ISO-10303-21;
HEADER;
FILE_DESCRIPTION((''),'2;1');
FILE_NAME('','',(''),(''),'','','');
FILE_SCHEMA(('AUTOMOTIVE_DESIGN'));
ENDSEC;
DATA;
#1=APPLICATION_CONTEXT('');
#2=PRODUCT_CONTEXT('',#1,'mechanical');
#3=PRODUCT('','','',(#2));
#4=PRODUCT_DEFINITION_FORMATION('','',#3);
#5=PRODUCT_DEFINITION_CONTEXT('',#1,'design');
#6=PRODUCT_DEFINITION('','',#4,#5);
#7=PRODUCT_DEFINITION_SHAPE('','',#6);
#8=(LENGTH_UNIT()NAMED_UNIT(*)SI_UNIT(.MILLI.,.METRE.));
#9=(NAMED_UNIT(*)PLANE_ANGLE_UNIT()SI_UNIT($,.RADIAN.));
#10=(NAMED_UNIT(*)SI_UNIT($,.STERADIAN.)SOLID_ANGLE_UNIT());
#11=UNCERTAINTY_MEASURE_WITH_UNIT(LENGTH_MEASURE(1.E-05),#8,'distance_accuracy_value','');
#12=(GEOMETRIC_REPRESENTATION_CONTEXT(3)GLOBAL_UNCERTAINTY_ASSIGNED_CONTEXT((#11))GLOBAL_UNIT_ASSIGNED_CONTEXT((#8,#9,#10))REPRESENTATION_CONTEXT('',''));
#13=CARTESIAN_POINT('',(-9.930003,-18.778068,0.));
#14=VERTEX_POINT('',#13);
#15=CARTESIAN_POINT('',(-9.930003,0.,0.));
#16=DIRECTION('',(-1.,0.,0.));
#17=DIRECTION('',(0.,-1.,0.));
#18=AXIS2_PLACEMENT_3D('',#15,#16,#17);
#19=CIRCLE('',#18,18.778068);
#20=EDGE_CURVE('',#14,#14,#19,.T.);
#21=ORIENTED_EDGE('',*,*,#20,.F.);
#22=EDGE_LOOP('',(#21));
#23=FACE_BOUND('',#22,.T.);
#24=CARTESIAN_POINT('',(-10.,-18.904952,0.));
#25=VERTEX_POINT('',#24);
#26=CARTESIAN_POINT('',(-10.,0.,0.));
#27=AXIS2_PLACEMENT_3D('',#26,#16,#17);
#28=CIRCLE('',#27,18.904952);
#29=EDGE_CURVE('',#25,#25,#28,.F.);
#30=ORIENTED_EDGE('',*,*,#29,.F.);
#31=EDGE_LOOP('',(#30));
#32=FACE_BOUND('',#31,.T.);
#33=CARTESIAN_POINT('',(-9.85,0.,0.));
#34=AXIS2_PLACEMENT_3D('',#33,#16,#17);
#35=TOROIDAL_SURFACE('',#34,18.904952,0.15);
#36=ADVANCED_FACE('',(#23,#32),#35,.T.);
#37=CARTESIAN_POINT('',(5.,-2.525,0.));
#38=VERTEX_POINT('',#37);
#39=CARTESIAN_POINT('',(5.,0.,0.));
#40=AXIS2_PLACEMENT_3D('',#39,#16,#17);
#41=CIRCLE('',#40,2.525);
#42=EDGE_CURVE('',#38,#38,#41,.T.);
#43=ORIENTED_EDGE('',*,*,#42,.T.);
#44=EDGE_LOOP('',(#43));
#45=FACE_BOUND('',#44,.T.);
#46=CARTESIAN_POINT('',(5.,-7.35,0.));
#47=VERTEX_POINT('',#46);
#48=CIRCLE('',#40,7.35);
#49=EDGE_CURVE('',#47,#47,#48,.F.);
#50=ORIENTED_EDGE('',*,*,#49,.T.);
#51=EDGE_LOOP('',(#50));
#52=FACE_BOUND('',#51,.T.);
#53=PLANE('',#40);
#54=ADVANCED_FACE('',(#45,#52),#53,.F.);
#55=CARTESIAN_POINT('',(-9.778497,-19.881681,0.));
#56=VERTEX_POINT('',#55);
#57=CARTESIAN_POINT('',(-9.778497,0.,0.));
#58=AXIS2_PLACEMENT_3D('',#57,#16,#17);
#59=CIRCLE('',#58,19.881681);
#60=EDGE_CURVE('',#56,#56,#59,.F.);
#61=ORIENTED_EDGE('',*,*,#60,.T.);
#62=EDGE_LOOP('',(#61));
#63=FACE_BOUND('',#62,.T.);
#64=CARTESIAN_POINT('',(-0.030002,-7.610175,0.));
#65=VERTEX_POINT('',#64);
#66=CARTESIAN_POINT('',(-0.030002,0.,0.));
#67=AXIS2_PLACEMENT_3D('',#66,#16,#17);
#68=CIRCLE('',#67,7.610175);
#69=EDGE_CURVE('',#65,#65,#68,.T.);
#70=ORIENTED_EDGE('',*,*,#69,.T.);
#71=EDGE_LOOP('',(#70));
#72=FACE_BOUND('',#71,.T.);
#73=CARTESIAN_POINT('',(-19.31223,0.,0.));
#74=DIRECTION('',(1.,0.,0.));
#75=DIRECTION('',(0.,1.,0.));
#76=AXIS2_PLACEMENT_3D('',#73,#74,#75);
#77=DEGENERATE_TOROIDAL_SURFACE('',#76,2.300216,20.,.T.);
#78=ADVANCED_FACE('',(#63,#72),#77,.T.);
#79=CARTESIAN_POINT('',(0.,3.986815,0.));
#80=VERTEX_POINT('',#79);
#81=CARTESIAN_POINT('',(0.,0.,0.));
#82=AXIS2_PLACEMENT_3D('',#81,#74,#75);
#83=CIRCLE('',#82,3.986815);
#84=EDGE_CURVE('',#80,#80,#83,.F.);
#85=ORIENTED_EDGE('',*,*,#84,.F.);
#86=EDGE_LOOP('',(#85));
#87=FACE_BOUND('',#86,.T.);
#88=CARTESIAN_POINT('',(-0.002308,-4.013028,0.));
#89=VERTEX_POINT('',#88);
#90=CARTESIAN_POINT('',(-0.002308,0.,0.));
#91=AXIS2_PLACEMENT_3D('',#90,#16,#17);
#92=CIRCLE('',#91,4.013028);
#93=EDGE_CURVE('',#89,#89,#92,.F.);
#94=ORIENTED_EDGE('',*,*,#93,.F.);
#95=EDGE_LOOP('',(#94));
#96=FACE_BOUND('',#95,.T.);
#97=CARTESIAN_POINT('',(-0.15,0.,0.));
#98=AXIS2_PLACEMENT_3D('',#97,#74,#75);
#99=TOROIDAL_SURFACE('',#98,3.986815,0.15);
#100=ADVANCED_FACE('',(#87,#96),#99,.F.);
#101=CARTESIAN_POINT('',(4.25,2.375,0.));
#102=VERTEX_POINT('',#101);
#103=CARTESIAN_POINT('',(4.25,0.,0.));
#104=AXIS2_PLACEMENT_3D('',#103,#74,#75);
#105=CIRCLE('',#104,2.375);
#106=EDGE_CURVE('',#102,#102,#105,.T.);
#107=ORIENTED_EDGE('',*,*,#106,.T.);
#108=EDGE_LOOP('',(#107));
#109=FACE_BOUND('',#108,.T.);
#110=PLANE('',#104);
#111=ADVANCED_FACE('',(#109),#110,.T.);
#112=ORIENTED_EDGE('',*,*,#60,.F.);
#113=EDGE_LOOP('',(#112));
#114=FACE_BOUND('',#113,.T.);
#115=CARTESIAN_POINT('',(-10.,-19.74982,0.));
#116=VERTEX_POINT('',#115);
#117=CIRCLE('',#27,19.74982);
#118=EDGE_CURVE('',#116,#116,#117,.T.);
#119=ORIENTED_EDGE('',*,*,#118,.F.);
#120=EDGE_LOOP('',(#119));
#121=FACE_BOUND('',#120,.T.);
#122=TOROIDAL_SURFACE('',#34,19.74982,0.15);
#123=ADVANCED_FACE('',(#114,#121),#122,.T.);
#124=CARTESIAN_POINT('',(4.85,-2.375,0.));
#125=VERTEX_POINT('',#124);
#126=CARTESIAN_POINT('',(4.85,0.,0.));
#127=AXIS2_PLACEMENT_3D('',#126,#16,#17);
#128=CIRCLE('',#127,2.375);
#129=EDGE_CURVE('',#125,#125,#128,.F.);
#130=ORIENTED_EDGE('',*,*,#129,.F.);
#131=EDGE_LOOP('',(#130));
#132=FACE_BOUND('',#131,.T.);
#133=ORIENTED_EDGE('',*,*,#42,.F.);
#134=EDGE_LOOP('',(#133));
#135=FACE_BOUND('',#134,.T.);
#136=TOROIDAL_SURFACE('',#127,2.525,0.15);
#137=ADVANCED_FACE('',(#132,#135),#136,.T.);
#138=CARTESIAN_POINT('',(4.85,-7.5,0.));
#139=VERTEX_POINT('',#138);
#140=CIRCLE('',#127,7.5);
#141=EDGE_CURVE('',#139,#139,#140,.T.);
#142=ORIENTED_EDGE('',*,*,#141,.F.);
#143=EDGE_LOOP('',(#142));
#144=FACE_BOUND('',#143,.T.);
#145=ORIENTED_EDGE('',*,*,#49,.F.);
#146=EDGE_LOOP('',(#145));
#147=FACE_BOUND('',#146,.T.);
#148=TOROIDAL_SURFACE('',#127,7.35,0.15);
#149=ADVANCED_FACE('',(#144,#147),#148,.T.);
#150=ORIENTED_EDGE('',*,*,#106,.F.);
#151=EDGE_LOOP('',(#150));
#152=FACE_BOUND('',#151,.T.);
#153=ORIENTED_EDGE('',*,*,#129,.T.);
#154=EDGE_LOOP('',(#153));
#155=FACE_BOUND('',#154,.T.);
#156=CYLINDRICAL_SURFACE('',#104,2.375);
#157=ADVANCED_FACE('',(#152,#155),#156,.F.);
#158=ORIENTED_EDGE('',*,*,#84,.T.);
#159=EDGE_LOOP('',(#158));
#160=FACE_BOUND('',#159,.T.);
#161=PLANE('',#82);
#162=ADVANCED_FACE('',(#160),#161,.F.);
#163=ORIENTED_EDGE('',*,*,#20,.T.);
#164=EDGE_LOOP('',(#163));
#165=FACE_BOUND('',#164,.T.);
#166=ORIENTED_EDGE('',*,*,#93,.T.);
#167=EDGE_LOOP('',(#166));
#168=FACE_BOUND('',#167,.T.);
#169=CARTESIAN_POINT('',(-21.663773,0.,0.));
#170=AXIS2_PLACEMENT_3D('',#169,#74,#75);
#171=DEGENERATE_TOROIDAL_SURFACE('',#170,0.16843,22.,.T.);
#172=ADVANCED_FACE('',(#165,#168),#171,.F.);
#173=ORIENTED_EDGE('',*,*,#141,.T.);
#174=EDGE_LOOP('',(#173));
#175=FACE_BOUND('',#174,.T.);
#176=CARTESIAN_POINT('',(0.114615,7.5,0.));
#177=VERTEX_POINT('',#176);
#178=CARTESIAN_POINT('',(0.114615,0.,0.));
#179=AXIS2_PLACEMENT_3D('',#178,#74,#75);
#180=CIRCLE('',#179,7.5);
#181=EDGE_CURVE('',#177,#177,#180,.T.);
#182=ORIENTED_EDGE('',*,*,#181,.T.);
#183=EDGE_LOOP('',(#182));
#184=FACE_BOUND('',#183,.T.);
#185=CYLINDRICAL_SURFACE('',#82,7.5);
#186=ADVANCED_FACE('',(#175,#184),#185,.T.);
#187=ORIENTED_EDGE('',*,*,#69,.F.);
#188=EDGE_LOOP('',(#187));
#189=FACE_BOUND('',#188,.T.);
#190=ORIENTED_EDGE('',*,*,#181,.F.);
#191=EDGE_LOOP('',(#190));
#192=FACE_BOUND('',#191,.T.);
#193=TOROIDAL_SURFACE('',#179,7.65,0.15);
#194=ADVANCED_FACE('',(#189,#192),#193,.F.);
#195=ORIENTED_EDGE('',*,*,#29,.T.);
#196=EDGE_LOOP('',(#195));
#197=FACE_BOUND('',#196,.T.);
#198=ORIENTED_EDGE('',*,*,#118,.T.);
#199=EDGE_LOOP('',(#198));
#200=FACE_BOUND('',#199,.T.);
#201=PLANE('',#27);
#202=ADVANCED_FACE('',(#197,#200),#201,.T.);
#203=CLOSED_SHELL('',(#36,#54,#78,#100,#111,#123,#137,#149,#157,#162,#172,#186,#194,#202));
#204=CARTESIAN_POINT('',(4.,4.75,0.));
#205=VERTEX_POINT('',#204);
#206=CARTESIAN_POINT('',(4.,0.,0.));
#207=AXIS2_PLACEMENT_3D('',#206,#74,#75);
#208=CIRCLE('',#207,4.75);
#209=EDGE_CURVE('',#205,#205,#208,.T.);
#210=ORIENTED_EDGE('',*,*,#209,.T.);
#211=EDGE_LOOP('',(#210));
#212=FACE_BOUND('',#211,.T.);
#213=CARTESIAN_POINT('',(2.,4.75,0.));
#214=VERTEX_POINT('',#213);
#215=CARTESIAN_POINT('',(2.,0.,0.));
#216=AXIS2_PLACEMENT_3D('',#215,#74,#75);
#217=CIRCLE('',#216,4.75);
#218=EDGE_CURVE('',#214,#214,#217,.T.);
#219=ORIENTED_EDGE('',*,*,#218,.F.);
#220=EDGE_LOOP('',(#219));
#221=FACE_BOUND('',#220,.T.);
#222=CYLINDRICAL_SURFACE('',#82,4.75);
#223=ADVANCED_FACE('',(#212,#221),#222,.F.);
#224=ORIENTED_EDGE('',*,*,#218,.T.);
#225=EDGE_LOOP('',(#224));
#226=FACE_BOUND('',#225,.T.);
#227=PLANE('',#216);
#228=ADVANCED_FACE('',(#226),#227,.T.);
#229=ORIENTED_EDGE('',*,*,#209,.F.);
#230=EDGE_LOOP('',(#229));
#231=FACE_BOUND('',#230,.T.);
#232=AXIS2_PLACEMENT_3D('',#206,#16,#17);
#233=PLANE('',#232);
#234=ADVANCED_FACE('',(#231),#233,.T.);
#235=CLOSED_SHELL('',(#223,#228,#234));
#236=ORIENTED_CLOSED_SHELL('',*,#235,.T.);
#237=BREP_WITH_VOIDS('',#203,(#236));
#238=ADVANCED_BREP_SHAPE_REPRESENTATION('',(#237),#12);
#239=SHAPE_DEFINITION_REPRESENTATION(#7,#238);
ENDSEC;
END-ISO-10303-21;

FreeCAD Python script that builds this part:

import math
import FreeCAD as App
import Part
import Sketcher


def edges_at(feature, points):
    """Names of the edges that pass closest to the given points."""
    edges = feature.Shape.Edges
    near = lambda p: min(range(len(edges)), key=lambda i: edges[i].distToShape(Part.Vertex(*p))[0])
    return sorted({f"Edge{near(p) + 1}" for p in points})

doc = App.newDocument("Part")
body = doc.addObject("PartDesign::Body", "Body")

# Sketch on XY plane
sketch1 = body.newObject("Sketcher::SketchObject", "Sketch")
sketch1.AttachmentSupport = (doc.getObject("XY_Plane"), [""])
sketch1.MapMode = "FlatFace"
sketch1.addGeometry(Part.ArcOfCircle(Part.Circle(App.Vector(-21.663773, 0.16843, 0), App.Vector(0, 0, 1), 22), math.radians(10.029911), math.radians(57.982956)), False)
sketch1.addGeometry(Part.LineSegment(App.Vector(0, 4, 0), App.Vector(0, 0, 0)), False)
sketch1.addGeometry(Part.LineSegment(App.Vector(0, 0, 0), App.Vector(2, 0, 0)), False)
sketch1.addGeometry(Part.LineSegment(App.Vector(2, 0, 0), App.Vector(2, 4.75, 0)), False)
sketch1.addGeometry(Part.LineSegment(App.Vector(2, 4.75, 0), App.Vector(4, 4.75, 0)), False)
sketch1.addGeometry(Part.LineSegment(App.Vector(4, 4.75, 0), App.Vector(4, 0, 0)), False)
sketch1.addGeometry(Part.LineSegment(App.Vector(4, 0, 0), App.Vector(5, 0, 0)), False)
sketch1.addGeometry(Part.LineSegment(App.Vector(5, 0, 0), App.Vector(5, 7.5, 0)), False)
sketch1.addGeometry(Part.LineSegment(App.Vector(5, 7.5, 0), App.Vector(0, 7.5, 0)), False)
sketch1.addGeometry(Part.ArcOfCircle(Part.Circle(App.Vector(-19.31223, 2.300216, 0), App.Vector(0, 0, 1), 20), math.radians(15.069422), math.radians(62.250194)), False)
sketch1.addGeometry(Part.LineSegment(App.Vector(-10, 20, 0), App.Vector(-10, 18.822019, 0)), False)
sketch1.addConstraint(Sketcher.Constraint("Coincident", 0, 1, 1, 1))
sketch1.addConstraint(Sketcher.Constraint("Coincident", 1, 2, 2, 1))
sketch1.addConstraint(Sketcher.Constraint("Coincident", 2, 2, 3, 1))
sketch1.addConstraint(Sketcher.Constraint("Coincident", 3, 2, 4, 1))
sketch1.addConstraint(Sketcher.Constraint("Coincident", 4, 2, 5, 1))
sketch1.addConstraint(Sketcher.Constraint("Coincident", 5, 2, 6, 1))
sketch1.addConstraint(Sketcher.Constraint("Coincident", 6, 2, 7, 1))
sketch1.addConstraint(Sketcher.Constraint("Coincident", 7, 2, 8, 1))
sketch1.addConstraint(Sketcher.Constraint("Coincident", 8, 2, 9, 1))
sketch1.addConstraint(Sketcher.Constraint("Coincident", 9, 2, 10, 1))
sketch1.addConstraint(Sketcher.Constraint("Coincident", 10, 2, 0, 2))
sketch1.addConstraint(Sketcher.Constraint("Vertical", 1))
sketch1.addConstraint(Sketcher.Constraint("Horizontal", 2))
sketch1.addConstraint(Sketcher.Constraint("Vertical", 3))
sketch1.addConstraint(Sketcher.Constraint("Horizontal", 4))
sketch1.addConstraint(Sketcher.Constraint("Vertical", 5))
sketch1.addConstraint(Sketcher.Constraint("Horizontal", 6))
sketch1.addConstraint(Sketcher.Constraint("Vertical", 7))
sketch1.addConstraint(Sketcher.Constraint("Horizontal", 8))
sketch1.addConstraint(Sketcher.Constraint("Vertical", 10))
sketch1.addConstraint(Sketcher.Constraint("Coincident", 1, 2, -1, 1))
sketch1.addConstraint(Sketcher.Constraint("PointOnObject", 5, 2, -1))
sketch1.addConstraint(Sketcher.Constraint("PointOnObject", 8, 2, -2))
sketch1.addConstraint(Sketcher.Constraint("Equal", 2, 4))
sketch1.addConstraint(Sketcher.Constraint("Radius", 0, 22.0))
sketch1.addConstraint(Sketcher.Constraint("Radius", 9, 20.0))
sketch1.addConstraint(Sketcher.Constraint("DistanceX", 2, 1, 2, 2, 2.0))
sketch1.addConstraint(Sketcher.Constraint("DistanceX", 6, 1, 6, 2, 1.0))
sketch1.addConstraint(Sketcher.Constraint("DistanceY", 1, 2, 1, 1, 4.0))
sketch1.addConstraint(Sketcher.Constraint("DistanceY", 7, 1, 7, 2, 7.5))
sketch1.addConstraint(Sketcher.Constraint("DistanceX", 9, 2, -1, 1, 10.0))
sketch1.addConstraint(Sketcher.Constraint("DistanceY", -1, 1, 9, 2, 20.0))
sketch1.addConstraint(Sketcher.Constraint("DistanceY", 3, 1, 3, 2, 4.75))
sketch1.addConstraint(Sketcher.Constraint("DistanceY", 10, 2, 10, 1, 1.177981))
revolution = body.newObject("PartDesign::Revolution", "Revolution")
revolution.Profile = sketch1
revolution.ReferenceAxis = (sketch1, ["H_Axis"])
revolution.Angle = 360

# Sketch on YZ plane
sketch2 = body.newObject("Sketcher::SketchObject", "Sketch001")
sketch2.AttachmentSupport = (doc.getObject("YZ_Plane"), [""])
sketch2.MapMode = "FlatFace"
sketch2.AttachmentOffset = App.Placement(App.Vector(0, 0, 5), App.Rotation())
sketch2.addGeometry(Part.Circle(App.Vector(0, 0, 0), App.Vector(0, 0, 1), 2.375), False)
sketch2.addConstraint(Sketcher.Constraint("Coincident", 0, 3, -1, 1))
sketch2.addConstraint(Sketcher.Constraint("Diameter", 0, 4.75))
pocket1 = body.newObject("PartDesign::Pocket", "Pocket")
pocket1.Profile = sketch2
pocket1.Length = 0.75
doc.recompute()

fillet = body.newObject("PartDesign::Fillet", "Fillet")
fillet.Base = (pocket1, edges_at(pocket1, [
    (0, -7.5, 0),
    (5, -7.5, 0),
    (0, -4, 0),
    (-10, -18.822, 0),
]))
fillet.Radius = 0.15
doc.recompute()

fillet2 = body.newObject("PartDesign::Fillet", "Fillet001")
fillet2.Base = (fillet, edges_at(fillet, [(-10, -20, 0), (5, -2.375, 0)]))
fillet2.Radius = 0.15

doc.recompute()
